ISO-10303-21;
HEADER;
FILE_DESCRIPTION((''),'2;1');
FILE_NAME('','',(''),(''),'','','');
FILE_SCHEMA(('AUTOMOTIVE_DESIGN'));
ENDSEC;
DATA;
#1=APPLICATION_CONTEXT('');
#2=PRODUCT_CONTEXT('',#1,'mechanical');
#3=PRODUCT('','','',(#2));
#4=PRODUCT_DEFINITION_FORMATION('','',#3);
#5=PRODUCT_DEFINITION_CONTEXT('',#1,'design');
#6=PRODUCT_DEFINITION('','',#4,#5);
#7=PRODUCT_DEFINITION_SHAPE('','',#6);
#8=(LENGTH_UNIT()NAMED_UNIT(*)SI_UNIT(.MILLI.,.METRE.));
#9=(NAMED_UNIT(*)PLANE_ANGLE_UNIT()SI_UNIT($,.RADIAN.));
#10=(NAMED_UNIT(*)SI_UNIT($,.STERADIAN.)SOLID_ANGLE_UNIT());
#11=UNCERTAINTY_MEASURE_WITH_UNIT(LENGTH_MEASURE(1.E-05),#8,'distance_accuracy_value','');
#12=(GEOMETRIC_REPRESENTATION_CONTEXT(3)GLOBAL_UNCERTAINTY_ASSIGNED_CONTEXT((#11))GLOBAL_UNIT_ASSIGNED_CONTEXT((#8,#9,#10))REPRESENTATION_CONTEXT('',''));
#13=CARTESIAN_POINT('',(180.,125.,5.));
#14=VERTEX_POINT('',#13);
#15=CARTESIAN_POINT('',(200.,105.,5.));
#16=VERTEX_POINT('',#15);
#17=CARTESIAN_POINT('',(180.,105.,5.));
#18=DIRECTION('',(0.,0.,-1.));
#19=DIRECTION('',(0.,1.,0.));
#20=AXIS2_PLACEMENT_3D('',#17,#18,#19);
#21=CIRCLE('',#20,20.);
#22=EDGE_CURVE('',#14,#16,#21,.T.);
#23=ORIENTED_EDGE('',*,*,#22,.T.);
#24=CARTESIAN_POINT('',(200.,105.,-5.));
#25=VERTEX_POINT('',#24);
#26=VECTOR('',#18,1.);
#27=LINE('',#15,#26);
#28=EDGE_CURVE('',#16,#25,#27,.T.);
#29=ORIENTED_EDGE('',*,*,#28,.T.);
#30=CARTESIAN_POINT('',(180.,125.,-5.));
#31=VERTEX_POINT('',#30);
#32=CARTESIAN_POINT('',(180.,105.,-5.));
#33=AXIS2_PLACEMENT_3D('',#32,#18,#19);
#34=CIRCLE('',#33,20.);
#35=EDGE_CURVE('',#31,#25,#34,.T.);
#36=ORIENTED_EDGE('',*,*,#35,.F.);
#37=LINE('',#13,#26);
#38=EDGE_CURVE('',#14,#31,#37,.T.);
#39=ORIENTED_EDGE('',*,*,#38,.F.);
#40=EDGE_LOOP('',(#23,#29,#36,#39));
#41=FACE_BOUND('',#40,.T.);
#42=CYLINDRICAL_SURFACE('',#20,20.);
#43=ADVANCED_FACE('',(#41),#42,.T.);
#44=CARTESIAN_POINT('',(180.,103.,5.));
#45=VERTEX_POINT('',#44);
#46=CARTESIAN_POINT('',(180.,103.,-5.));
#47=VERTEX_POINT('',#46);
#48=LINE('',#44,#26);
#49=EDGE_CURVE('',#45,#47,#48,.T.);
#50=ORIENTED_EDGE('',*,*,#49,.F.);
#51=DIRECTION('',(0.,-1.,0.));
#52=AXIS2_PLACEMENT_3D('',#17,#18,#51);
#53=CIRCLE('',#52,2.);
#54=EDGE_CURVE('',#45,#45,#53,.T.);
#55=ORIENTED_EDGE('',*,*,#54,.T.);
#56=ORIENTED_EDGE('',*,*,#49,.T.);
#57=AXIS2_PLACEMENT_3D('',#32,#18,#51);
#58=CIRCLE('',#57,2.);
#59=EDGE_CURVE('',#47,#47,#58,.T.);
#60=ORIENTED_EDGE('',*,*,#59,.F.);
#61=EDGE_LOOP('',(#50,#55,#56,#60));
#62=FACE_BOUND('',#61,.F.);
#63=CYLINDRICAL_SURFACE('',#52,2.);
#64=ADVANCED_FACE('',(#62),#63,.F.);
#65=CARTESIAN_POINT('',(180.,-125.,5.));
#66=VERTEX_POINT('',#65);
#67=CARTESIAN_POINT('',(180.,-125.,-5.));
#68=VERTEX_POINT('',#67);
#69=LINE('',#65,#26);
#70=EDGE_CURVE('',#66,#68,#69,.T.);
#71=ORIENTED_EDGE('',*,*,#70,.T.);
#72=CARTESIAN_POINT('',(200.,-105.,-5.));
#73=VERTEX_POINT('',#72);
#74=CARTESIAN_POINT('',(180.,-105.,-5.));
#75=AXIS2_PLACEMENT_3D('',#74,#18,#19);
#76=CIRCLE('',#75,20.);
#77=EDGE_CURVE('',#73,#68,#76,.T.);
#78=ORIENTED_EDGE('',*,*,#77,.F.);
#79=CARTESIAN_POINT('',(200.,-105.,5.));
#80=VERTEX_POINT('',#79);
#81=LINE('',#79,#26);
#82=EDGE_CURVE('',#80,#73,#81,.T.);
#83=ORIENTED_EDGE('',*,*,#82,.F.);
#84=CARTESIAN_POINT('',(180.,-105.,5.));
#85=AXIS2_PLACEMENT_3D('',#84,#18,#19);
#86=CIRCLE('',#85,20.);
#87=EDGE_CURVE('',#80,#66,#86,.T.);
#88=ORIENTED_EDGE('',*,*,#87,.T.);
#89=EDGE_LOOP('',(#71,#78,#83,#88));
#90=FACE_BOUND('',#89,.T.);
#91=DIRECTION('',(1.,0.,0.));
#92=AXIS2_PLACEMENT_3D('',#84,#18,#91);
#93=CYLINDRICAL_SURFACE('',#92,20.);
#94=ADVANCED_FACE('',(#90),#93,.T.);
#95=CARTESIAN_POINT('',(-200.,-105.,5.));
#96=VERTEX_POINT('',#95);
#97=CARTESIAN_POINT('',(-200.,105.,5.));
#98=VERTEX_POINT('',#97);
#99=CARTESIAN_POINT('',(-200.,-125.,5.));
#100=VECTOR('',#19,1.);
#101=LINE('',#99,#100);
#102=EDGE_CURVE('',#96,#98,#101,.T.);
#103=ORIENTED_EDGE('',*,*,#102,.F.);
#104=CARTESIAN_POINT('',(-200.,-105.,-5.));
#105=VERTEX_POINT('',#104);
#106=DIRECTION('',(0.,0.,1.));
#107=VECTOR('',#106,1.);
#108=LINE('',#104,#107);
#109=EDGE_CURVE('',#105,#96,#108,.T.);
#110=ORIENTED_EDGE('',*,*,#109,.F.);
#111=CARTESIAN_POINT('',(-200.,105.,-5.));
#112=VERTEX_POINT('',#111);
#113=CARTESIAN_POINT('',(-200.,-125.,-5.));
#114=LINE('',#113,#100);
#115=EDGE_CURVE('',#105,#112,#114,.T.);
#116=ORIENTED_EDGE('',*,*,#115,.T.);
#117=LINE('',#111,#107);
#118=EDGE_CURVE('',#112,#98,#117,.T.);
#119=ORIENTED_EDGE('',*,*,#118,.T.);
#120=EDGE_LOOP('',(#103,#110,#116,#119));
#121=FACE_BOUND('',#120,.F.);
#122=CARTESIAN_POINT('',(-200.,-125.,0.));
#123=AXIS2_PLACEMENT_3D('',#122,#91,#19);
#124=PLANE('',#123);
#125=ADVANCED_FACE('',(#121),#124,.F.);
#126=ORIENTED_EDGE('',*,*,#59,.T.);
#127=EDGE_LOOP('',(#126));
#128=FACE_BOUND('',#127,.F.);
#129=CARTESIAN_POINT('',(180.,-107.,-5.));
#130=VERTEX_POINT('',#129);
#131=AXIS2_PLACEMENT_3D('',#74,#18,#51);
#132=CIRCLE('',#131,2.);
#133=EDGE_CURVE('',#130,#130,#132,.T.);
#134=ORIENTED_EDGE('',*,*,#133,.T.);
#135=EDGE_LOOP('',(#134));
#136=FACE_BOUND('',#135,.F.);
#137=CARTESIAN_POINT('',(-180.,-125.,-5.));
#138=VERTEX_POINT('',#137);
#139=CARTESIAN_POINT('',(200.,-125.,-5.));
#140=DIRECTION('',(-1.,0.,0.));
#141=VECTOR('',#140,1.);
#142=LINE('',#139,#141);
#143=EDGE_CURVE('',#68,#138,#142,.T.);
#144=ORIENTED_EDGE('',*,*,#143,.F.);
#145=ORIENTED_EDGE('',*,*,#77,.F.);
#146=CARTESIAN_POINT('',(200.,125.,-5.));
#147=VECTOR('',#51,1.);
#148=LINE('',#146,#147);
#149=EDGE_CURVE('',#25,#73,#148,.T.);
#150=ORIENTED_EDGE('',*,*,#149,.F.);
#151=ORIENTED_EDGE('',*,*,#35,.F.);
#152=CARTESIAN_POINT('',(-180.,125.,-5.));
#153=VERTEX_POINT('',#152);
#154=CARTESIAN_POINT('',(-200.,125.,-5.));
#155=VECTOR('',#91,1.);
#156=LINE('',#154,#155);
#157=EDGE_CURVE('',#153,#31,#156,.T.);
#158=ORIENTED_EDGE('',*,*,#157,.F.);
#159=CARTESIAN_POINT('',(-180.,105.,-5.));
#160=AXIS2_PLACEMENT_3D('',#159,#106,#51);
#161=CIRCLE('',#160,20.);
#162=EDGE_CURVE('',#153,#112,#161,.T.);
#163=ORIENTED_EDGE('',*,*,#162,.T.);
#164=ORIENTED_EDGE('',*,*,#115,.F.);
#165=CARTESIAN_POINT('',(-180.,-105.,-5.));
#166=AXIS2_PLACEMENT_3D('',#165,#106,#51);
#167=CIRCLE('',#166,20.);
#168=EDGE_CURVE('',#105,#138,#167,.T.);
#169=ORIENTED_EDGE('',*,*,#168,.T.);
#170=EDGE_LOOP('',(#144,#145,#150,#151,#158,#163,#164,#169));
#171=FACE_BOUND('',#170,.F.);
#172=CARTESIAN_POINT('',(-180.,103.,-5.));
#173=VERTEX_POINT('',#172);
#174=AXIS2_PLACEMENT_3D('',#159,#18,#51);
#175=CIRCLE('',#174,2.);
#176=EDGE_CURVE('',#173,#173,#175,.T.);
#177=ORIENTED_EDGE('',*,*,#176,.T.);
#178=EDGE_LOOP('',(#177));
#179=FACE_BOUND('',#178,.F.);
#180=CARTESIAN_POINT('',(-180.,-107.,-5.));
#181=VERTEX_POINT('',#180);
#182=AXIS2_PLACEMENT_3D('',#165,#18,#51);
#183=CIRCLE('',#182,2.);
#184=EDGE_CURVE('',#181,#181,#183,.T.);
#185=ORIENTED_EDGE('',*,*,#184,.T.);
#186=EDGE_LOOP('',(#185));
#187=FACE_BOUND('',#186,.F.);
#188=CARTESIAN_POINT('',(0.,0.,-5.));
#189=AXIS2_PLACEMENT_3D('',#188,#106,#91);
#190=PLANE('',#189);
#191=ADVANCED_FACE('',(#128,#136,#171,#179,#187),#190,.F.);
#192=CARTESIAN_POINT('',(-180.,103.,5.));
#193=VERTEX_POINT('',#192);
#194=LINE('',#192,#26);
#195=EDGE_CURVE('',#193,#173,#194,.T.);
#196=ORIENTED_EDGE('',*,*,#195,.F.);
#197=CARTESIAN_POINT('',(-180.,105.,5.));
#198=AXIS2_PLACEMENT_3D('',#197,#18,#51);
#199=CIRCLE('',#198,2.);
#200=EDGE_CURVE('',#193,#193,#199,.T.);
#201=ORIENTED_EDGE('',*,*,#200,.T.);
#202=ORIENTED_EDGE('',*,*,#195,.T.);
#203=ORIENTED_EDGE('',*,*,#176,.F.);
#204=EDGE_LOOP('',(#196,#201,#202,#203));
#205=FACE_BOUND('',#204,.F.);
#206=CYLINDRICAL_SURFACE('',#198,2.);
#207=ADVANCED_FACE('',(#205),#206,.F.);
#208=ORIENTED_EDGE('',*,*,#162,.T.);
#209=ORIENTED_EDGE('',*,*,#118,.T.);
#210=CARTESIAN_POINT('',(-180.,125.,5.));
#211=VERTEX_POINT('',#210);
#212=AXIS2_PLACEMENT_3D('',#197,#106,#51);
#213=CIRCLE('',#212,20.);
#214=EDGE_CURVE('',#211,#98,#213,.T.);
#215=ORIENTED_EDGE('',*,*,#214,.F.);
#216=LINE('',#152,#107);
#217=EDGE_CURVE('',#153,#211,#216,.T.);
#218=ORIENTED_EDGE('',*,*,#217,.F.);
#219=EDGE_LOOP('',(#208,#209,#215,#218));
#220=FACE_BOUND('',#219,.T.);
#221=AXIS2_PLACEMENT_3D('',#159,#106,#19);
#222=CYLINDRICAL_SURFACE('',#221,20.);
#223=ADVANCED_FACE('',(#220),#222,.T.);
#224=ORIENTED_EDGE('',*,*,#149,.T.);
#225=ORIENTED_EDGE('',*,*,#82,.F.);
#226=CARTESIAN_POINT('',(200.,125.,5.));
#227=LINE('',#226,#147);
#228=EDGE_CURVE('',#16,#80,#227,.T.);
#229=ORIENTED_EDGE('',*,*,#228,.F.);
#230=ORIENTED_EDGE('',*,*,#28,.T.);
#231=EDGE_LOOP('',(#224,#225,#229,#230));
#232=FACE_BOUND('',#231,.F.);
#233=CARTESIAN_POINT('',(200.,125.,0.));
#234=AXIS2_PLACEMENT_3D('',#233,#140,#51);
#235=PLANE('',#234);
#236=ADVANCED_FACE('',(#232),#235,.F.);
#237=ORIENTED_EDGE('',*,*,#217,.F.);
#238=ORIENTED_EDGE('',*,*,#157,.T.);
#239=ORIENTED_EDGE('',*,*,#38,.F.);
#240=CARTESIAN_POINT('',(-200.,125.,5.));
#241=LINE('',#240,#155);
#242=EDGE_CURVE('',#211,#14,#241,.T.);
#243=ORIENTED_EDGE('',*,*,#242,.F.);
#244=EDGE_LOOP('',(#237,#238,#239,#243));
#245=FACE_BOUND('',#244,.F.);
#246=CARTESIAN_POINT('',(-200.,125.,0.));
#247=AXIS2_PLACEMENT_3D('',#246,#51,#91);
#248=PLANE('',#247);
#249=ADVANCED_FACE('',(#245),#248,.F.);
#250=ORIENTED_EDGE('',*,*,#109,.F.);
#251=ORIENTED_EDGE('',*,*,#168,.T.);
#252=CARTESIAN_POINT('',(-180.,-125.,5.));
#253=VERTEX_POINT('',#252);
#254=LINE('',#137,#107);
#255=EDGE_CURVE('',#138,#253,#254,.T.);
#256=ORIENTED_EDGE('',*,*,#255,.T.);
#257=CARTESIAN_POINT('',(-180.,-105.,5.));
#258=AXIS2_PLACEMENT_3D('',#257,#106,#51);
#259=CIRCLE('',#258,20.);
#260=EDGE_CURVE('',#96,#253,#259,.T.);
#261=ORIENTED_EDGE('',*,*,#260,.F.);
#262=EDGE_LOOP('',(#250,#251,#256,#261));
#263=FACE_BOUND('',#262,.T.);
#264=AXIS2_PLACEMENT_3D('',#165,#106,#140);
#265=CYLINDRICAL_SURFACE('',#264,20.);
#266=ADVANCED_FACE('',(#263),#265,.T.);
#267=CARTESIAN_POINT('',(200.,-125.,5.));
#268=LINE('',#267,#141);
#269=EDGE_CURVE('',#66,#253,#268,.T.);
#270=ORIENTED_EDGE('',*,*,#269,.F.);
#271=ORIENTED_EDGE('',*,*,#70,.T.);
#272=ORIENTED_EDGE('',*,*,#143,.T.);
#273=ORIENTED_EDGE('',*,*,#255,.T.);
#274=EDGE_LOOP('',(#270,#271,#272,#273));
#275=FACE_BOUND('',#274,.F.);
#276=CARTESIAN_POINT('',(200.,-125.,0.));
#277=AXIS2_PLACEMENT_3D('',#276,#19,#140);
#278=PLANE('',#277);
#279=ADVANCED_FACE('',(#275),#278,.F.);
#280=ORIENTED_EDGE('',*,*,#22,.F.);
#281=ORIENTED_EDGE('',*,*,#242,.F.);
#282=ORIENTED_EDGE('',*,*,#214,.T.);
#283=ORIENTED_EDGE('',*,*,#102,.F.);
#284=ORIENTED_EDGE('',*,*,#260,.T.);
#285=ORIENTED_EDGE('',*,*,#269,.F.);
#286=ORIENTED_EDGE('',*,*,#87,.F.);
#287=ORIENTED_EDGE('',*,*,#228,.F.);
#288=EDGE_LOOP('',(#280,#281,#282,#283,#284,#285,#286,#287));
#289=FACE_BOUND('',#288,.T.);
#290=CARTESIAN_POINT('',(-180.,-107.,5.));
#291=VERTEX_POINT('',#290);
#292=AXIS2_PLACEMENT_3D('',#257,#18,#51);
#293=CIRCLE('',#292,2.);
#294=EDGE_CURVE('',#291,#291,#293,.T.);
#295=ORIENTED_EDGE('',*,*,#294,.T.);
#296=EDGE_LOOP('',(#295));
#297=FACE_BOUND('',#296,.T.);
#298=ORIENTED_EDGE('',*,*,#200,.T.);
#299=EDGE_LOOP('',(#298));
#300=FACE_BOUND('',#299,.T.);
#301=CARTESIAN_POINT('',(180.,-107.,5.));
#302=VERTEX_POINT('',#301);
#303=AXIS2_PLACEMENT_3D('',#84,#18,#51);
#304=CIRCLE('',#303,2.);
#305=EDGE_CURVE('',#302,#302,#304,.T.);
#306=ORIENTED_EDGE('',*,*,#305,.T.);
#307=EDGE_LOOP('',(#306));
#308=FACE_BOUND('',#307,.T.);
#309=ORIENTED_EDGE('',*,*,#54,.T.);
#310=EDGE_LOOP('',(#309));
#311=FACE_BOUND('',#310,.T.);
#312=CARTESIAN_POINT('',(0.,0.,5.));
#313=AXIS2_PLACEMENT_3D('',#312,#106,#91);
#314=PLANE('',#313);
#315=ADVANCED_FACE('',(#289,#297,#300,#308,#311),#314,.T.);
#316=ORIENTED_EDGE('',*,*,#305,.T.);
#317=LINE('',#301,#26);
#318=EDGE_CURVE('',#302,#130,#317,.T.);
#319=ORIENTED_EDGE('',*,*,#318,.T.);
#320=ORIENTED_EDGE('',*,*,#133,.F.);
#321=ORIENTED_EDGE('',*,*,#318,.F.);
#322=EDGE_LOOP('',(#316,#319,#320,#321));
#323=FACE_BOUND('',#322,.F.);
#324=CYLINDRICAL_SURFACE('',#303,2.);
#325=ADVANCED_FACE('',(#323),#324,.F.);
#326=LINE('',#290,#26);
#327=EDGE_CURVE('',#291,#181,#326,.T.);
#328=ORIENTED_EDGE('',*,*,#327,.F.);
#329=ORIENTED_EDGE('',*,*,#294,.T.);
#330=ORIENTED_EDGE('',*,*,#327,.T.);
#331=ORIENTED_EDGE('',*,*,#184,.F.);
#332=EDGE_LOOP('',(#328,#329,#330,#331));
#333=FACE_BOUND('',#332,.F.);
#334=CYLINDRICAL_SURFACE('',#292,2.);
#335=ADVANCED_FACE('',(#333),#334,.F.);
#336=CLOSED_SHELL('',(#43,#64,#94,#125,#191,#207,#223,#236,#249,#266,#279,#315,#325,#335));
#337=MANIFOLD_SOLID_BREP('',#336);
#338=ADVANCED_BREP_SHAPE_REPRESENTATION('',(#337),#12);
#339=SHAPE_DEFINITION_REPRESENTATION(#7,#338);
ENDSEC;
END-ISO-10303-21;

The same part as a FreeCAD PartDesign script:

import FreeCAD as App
import Part
import Sketcher


def edges_at(feature, points):
    """Names of the edges that pass closest to the given points."""
    edges = feature.Shape.Edges
    near = lambda p: min(range(len(edges)), key=lambda i: edges[i].distToShape(Part.Vertex(*p))[0])
    return sorted({f"Edge{near(p) + 1}" for p in points})

doc = App.newDocument("Part")
params = doc.addObject("Spreadsheet::Sheet", "Params")
for row, (alias, value) in enumerate([
    ("sketch1_width", "400 mm"),
    ("sketch1_height", "250 mm"),
    ("pad1_length", "10 mm"),
    ("fillet_radius", "20 mm"),
    ("sketch2_diameter", "4 mm"),
    ("hole_diameter", "4 mm"),
], start=1):
    params.set(f"A{row}", alias)
    params.set(f"B{row}", "=" + value)
    params.setAlias(f"B{row}", alias)

body = doc.addObject("PartDesign::Body", "Body")

sketch1 = body.newObject("Sketcher::SketchObject", "Sketch")
sketch1.AttachmentSupport = (doc.getObject("XY_Plane"), [""])
sketch1.MapMode = "FlatFace"
sketch1.addGeometry([
    Part.LineSegment(App.Vector(200, 125, 0), App.Vector(-200, 125, 0)),
    Part.LineSegment(App.Vector(-200, 125, 0), App.Vector(-200, -125, 0)),
    Part.LineSegment(App.Vector(-200, -125, 0), App.Vector(200, -125, 0)),
    Part.LineSegment(App.Vector(200, -125, 0), App.Vector(200, 125, 0)),
], False)
sketch1.addConstraint([
    Sketcher.Constraint("Coincident", 0, 2, 1, 1),
    Sketcher.Constraint("Coincident", 1, 2, 2, 1),
    Sketcher.Constraint("Coincident", 2, 2, 3, 1),
    Sketcher.Constraint("Coincident", 3, 2, 0, 1),
    Sketcher.Constraint("Horizontal", 0),
    Sketcher.Constraint("Vertical", 1),
    Sketcher.Constraint("Horizontal", 2),
    Sketcher.Constraint("Vertical", 3),
    Sketcher.Constraint("Symmetric", 0, 2, 2, 2, -1, 1),
    Sketcher.Constraint("DistanceX", 0, 2, 0, 1, 400.0),
    Sketcher.Constraint("DistanceY", 1, 2, 1, 1, 250.0),
])
sketch1.setExpression("Constraints[9]", "Params.sketch1_width")
sketch1.setExpression("Constraints[10]", "Params.sketch1_height")
pad1 = body.newObject("PartDesign::Pad", "Pad")
pad1.Profile = sketch1
pad1.setExpression("Length", "Params.pad1_length")
pad1.Midplane = True
doc.recompute()

fillet = body.newObject("PartDesign::Fillet", "Fillet")
fillet.Base = (pad1, edges_at(pad1, [
    (-200, -125, 0),
    (200, -125, 0),
    (200, 125, 0),
    (-200, 125, 0),
]))
fillet.setExpression("Radius", "Params.fillet_radius")

sketch2 = body.newObject("Sketcher::SketchObject", "Sketch001")
sketch2.AttachmentSupport = (doc.getObject("XY_Plane"), [""])
sketch2.MapMode = "FlatFace"
sketch2.AttachmentOffset = App.Placement(App.Vector(0, 0, 5), App.Rotation())
sketch2.addGeometry([
    Part.Circle(App.Vector(-180, 105, 0), App.Vector(0, 0, 1), 2),
    Part.Circle(App.Vector(180, 105, 0), App.Vector(0, 0, 1), 2),
    Part.Circle(App.Vector(180, -105, 0), App.Vector(0, 0, 1), 2),
    Part.Circle(App.Vector(-180, -105, 0), App.Vector(0, 0, 1), 2),
], False)
sketch2.addConstraint([
    Sketcher.Constraint("Equal", 0, 1),
    Sketcher.Constraint("Equal", 1, 2),
    Sketcher.Constraint("Equal", 2, 3),
    Sketcher.Constraint("Symmetric", 0, 3, 2, 3, -1, 1),
    Sketcher.Constraint("Symmetric", 1, 3, 3, 3, -1, 1),
    Sketcher.Constraint("Symmetric", 0, 3, 1, 3, -2),
    Sketcher.Constraint("Diameter", 0, 4.0),
    Sketcher.Constraint("DistanceX", 0, 3, -1, 1, 180.0),
    Sketcher.Constraint("DistanceY", -1, 1, 0, 3, 105.0),
])
sketch2.setExpression("Constraints[6]", "Params.sketch2_diameter")
doc.recompute()
hole = body.newObject("PartDesign::Hole", "Hole")
hole.Profile = sketch2
hole.ThreadType = "None"
hole.setExpression("Diameter", "Params.hole_diameter")
hole.DepthType = "ThroughAll"

doc.recompute()
